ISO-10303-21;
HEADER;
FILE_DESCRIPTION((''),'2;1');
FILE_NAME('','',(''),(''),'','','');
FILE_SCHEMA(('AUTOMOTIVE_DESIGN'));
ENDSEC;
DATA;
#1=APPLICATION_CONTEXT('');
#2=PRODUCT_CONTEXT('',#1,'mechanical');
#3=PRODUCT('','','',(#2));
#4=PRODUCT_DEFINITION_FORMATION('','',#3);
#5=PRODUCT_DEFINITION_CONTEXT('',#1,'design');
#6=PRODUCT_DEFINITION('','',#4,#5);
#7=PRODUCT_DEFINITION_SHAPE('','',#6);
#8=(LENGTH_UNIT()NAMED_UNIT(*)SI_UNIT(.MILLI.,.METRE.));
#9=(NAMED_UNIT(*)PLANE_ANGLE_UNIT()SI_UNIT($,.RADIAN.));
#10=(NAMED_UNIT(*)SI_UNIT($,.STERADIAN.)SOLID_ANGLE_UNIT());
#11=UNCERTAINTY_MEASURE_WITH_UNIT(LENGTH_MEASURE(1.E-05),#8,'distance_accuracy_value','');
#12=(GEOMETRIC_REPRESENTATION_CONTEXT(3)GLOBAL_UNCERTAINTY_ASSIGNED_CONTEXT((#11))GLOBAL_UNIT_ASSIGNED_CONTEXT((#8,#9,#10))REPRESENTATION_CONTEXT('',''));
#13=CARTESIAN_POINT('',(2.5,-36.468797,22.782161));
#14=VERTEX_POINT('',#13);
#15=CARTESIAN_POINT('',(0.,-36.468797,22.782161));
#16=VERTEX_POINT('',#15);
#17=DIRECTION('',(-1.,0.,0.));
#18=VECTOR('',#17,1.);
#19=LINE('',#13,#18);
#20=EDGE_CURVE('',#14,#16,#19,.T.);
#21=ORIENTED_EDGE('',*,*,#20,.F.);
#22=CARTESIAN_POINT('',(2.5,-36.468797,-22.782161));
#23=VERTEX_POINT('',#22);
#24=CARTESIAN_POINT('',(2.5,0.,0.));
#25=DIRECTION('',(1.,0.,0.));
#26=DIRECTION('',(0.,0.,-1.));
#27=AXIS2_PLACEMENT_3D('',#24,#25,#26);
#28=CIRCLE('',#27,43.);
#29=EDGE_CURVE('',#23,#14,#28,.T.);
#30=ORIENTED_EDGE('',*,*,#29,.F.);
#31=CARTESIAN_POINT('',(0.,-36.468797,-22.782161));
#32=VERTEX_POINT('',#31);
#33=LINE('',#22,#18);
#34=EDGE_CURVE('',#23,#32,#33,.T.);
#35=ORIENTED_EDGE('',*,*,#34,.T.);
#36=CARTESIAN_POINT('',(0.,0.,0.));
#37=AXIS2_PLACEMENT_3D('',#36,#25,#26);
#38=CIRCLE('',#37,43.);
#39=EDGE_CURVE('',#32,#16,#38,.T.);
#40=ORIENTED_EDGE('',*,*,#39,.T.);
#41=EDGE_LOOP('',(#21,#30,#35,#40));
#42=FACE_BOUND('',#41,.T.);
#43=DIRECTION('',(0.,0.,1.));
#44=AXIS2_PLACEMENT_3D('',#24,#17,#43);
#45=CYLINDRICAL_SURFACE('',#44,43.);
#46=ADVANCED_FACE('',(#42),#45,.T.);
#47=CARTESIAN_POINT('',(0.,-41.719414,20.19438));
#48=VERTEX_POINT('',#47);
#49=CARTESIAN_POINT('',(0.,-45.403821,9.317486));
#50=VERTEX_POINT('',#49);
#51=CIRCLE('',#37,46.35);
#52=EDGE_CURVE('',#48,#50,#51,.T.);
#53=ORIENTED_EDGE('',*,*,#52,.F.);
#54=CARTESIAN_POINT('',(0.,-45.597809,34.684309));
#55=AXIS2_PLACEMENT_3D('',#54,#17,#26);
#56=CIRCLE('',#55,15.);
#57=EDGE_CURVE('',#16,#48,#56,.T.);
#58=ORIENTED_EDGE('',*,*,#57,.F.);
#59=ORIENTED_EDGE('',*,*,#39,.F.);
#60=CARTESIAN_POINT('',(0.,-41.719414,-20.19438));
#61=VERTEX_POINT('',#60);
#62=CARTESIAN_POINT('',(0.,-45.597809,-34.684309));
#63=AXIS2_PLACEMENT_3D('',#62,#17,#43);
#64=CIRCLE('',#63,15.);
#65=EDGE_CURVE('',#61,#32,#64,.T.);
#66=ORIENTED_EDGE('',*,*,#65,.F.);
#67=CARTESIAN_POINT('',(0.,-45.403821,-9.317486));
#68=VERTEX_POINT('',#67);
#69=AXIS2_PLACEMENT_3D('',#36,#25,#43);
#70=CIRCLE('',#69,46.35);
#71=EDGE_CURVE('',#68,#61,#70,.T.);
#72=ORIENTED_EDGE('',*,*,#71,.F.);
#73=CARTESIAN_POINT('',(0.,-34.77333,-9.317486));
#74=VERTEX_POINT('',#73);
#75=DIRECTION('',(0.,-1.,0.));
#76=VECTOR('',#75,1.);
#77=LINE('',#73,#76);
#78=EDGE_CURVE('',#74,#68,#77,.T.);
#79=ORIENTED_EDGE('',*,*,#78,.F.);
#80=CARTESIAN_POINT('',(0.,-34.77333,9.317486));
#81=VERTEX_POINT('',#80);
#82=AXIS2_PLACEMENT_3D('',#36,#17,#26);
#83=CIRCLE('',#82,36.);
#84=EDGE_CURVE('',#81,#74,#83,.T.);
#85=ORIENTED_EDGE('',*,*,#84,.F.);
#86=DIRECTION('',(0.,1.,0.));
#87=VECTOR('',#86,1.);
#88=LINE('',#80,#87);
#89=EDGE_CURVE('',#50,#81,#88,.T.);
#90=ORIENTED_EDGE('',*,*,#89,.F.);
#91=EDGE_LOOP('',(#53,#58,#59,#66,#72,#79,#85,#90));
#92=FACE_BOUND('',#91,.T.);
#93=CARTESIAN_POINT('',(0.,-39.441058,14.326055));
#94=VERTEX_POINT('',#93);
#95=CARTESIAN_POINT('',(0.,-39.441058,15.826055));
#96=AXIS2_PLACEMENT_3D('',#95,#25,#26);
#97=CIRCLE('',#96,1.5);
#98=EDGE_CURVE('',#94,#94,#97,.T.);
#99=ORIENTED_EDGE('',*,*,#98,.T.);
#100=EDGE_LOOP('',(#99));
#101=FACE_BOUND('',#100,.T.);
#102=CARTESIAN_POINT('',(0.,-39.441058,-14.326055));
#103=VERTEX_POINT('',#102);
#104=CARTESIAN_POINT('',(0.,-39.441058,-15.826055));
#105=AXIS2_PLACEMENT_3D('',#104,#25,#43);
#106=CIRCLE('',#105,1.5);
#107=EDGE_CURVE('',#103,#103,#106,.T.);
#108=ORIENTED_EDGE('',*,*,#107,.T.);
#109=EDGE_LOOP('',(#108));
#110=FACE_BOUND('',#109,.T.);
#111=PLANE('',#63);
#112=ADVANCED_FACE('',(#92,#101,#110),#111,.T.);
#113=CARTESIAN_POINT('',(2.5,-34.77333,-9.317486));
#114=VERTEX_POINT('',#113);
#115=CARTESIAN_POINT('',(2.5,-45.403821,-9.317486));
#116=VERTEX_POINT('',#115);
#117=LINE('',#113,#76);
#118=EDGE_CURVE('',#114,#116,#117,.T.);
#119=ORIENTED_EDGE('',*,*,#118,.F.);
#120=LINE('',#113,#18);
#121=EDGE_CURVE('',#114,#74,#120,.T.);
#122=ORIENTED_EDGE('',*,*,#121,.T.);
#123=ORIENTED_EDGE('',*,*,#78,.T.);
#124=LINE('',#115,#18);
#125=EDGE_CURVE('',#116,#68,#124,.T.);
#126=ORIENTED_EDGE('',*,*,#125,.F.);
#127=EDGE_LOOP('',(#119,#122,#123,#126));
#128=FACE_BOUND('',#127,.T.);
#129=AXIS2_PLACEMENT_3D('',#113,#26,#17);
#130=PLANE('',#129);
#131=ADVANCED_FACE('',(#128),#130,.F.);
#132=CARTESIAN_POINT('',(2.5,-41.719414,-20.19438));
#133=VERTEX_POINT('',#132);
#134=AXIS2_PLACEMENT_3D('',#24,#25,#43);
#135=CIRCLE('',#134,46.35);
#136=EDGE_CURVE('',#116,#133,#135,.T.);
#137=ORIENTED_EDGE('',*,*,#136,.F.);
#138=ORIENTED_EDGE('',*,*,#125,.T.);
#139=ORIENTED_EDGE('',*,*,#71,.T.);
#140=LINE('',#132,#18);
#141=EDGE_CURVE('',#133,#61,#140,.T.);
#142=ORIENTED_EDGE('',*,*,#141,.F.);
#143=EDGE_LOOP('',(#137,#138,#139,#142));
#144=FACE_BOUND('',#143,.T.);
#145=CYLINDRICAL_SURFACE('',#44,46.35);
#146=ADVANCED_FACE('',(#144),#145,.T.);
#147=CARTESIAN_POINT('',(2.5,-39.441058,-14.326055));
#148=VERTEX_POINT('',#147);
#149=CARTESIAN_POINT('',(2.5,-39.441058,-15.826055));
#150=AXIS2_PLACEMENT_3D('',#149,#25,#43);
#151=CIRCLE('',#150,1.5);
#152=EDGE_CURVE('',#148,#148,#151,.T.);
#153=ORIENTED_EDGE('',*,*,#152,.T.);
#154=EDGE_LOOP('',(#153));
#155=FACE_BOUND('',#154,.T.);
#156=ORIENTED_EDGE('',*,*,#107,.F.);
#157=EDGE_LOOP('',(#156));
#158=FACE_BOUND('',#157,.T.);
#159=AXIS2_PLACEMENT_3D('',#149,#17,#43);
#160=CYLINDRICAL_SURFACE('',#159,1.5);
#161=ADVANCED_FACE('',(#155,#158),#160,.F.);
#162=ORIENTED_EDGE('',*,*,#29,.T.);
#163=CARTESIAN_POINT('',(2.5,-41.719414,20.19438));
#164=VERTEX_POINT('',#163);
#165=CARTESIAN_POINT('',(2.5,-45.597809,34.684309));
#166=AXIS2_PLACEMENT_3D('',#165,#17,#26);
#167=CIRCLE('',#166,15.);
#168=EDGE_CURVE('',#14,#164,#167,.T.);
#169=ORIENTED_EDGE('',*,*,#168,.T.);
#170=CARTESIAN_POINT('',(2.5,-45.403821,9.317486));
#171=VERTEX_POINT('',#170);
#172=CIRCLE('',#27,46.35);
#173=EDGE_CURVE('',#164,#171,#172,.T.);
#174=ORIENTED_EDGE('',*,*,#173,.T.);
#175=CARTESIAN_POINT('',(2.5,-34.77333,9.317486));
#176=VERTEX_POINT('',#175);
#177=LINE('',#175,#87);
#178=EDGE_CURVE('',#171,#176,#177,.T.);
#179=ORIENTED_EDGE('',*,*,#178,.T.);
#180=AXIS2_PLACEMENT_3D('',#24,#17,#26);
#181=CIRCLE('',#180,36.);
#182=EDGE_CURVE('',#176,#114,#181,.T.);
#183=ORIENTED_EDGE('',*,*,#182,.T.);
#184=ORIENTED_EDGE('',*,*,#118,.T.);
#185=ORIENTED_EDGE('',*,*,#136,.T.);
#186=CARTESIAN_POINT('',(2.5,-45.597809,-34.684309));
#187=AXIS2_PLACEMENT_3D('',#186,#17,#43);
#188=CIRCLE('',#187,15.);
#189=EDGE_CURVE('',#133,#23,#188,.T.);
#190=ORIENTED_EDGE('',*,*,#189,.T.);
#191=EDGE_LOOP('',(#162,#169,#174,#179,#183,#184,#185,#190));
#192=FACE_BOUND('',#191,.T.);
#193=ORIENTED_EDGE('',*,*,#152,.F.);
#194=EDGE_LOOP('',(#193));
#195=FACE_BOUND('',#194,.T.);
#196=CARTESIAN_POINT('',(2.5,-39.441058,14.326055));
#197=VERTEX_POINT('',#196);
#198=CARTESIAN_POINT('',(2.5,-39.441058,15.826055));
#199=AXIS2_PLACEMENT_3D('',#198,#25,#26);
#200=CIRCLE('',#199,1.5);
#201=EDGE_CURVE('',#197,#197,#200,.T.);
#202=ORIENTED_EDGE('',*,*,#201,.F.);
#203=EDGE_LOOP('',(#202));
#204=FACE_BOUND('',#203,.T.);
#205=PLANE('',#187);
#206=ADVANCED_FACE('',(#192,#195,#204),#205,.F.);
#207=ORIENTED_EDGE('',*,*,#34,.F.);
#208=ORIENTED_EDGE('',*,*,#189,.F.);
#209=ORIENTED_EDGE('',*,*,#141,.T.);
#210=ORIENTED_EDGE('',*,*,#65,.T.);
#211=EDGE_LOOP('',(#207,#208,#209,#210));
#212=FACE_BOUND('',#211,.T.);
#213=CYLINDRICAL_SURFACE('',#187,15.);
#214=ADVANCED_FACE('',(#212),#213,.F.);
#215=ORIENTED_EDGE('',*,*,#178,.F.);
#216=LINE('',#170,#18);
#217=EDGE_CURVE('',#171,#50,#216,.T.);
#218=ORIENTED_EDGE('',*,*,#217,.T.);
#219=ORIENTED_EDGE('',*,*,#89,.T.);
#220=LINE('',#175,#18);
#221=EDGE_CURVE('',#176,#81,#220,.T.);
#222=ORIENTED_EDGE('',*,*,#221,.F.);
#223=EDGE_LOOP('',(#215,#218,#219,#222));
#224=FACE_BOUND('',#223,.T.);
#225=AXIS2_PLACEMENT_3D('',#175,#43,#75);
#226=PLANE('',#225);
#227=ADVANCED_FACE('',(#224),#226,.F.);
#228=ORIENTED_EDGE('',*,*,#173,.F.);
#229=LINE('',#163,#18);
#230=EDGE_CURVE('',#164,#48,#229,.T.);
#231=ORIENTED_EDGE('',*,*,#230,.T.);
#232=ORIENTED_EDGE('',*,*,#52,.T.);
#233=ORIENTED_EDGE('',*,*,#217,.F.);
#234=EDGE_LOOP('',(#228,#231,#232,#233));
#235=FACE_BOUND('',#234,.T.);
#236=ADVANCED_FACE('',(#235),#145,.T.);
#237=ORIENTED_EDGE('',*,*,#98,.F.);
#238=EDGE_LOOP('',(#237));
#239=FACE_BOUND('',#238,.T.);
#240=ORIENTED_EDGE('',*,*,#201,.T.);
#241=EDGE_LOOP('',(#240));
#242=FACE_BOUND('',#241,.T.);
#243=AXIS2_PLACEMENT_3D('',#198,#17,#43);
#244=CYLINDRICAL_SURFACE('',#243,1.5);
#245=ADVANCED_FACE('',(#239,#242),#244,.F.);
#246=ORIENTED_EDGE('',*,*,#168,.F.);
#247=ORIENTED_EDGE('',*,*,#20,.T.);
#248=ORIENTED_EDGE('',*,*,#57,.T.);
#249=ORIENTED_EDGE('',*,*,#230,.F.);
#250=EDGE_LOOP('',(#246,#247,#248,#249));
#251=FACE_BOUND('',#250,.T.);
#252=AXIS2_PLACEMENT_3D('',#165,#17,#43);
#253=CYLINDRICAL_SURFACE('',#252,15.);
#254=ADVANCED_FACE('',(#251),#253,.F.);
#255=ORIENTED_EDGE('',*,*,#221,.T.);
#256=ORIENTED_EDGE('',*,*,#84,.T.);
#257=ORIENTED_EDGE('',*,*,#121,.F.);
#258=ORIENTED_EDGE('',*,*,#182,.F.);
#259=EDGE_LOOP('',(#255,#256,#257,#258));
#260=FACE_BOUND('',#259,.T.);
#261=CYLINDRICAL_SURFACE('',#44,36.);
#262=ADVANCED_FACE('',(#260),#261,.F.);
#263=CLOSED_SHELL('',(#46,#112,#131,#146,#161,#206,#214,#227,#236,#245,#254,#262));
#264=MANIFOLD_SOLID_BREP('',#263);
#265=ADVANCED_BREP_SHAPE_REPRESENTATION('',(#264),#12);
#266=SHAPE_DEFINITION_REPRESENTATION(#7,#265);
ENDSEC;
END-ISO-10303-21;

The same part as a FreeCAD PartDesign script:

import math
import FreeCAD as App
import Part
import Sketcher
Q = App.Units.Quantity

doc = App.newDocument("Part")
body = doc.addObject("PartDesign::Body", "Body")

# Sketch on YZ plane
sketch1 = body.newObject("Sketcher::SketchObject", "Sketch")
sketch1.AttachmentSupport = (doc.getObject("YZ_Plane"), [""])
sketch1.MapMode = "FlatFace"
sketch1.addGeometry([
    Part.LineSegment(App.Vector(-45.4, 9.3, 0), App.Vector(-34.8, 9.3, 0)),  # 0
    Part.ArcOfCircle(Part.Circle(App.Vector(0, 0, 0), App.Vector(0, 0, 1), 36), math.radians(-165), math.radians(165)),  # 1
    Part.LineSegment(App.Vector(-34.8, -9.3, 0), App.Vector(-45.4, -9.3, 0)),  # 2
    Part.ArcOfCircle(Part.Circle(App.Vector(0, 0, 0), App.Vector(0, 0, 1), 46.4), math.radians(-168.4), math.radians(-154.17)),  # 3
    Part.ArcOfCircle(Part.Circle(App.Vector(-45.6, -34.7, 0), App.Vector(0, 0, 1), 15), math.radians(53), math.radians(75)),  # 4
    Part.ArcOfCircle(Part.Circle(App.Vector(0, 0, 0), App.Vector(0, 0, 1), 43), math.radians(-148), math.radians(148)),  # 5
    Part.ArcOfCircle(Part.Circle(App.Vector(-45.6, 34.7, 0), App.Vector(0, 0, 1), 15), math.radians(-75), math.radians(-53)),  # 6
    Part.ArcOfCircle(Part.Circle(App.Vector(0, 0, 0), App.Vector(0, 0, 1), 46.4), math.radians(154.17), math.radians(168.4)),  # 7
    Part.Circle(App.Vector(-39.4, -15.8, 0), App.Vector(0, 0, 1), 1.5),  # 8
    Part.Circle(App.Vector(-39.4, 15.8, 0), App.Vector(0, 0, 1), 1.5),  # 9
], False)
sketch1.addConstraint([
    Sketcher.Constraint("Coincident", 0, 2, 1, 2),
    Sketcher.Constraint("Coincident", 1, 1, 2, 1),
    Sketcher.Constraint("Coincident", 2, 2, 3, 1),
    Sketcher.Constraint("Coincident", 3, 2, 4, 2),
    Sketcher.Constraint("Coincident", 4, 1, 5, 1),
    Sketcher.Constraint("Coincident", 5, 2, 6, 2),
    Sketcher.Constraint("Coincident", 6, 1, 7, 1),
    Sketcher.Constraint("Coincident", 7, 2, 0, 1),
    Sketcher.Constraint("Horizontal", 0),
    Sketcher.Constraint("Horizontal", 2),
    Sketcher.Constraint("Coincident", 1, 3, -1, 1),
    Sketcher.Constraint("Coincident", 3, 3, -1, 1),
    Sketcher.Constraint("Coincident", 5, 3, -1, 1),
    Sketcher.Constraint("Coincident", 7, 3, -1, 1),
    Sketcher.Constraint("Equal", 4, 6),
    Sketcher.Constraint("Equal", 3, 7),
    Sketcher.Constraint("Equal", 8, 9),
    Sketcher.Constraint("Symmetric", 4, 3, 6, 3, -1),
    Sketcher.Constraint("Symmetric", 8, 3, 9, 3, -1),
    Sketcher.Constraint("Vertical", 0, 2, 1, 1),
    Sketcher.Constraint("Diameter", 8, Q("3 mm")),
    Sketcher.Constraint("Radius", 1, Q("36 mm")),
    Sketcher.Constraint("Radius", 4, Q("15 mm")),
    Sketcher.Constraint("Radius", 5, Q("43 mm")),
    Sketcher.Constraint("Radius", 3, Q("46.35 mm")),
    Sketcher.Constraint("DistanceX", 0, 1, 0, 2, Q("10.630491 mm")),
    Sketcher.Constraint("DistanceX", 4, 3, -1, 1, Q("45.597809 mm")),
    Sketcher.Constraint("DistanceY", 4, 3, -1, 1, Q("34.684309 mm")),
    Sketcher.Constraint("DistanceX", 4, 3, 8, 3, Q("6.156752 mm")),
    Sketcher.Constraint("DistanceY", 8, 3, 9, 3, Q("31.652109 mm")),
])
pad1 = body.newObject("PartDesign::Pad", "Pad")
pad1.Profile = sketch1
pad1.Length = 2.5

doc.recompute()
